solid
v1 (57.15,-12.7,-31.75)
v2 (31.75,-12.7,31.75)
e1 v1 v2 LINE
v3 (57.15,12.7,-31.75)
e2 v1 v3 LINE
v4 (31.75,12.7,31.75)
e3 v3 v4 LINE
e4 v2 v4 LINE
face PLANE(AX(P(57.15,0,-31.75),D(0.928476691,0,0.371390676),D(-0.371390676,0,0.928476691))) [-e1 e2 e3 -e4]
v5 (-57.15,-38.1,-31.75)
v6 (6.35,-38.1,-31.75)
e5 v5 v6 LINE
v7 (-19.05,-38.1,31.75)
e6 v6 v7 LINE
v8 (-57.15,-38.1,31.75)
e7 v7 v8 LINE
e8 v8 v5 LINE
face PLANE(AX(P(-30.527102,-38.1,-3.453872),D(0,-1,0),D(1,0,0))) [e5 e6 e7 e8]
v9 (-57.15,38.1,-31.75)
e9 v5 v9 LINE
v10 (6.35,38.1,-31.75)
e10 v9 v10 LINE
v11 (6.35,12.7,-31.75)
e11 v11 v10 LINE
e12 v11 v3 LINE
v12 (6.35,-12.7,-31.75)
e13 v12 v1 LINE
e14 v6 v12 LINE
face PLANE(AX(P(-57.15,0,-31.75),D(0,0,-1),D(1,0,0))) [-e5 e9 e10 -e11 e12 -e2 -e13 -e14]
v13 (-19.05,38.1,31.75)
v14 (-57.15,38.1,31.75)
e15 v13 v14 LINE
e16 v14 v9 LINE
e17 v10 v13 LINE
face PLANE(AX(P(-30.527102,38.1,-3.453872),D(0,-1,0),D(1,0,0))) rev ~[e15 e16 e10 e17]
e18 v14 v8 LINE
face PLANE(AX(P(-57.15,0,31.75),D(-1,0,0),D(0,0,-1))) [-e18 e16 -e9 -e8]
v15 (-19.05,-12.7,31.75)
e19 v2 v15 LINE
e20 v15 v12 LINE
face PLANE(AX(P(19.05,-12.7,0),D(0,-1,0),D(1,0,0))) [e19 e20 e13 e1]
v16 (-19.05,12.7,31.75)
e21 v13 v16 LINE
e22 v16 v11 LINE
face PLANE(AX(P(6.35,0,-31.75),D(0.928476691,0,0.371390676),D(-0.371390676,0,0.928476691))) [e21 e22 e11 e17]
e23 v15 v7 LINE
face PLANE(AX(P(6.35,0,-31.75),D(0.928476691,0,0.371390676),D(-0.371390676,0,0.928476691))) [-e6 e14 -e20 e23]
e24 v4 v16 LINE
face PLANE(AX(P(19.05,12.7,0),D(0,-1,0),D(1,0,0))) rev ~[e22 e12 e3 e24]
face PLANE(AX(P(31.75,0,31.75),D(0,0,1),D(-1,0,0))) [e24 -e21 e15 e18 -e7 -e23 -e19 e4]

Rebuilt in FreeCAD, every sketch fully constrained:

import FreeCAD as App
import Part
import Sketcher
from FreeCAD import Vector
Q = App.Units.Quantity

doc = App.newDocument("Part")
body = doc.addObject("PartDesign::Body", "Body")

# Sketch on XZ plane
sketch1 = body.newObject("Sketcher::SketchObject", "Sketch")
sketch1.AttachmentSupport = (doc.getObject("XZ_Plane"), [""])
sketch1.MapMode = "FlatFace"
sketch1.addGeometry([
    Part.LineSegment(Vector(6, -32, 0), Vector(-19, 32, 0)),
    Part.LineSegment(Vector(-19, 32, 0), Vector(-57, 32, 0)),
    Part.LineSegment(Vector(-57, 32, 0), Vector(-57, -32, 0)),
    Part.LineSegment(Vector(-57, -32, 0), Vector(6, -32, 0)),
], False)
sketch1.addConstraint([
    Sketcher.Constraint("Coincident", 0, 2, 1, 1),
    Sketcher.Constraint("Coincident", 1, 2, 2, 1),
    Sketcher.Constraint("Coincident", 2, 2, 3, 1),
    Sketcher.Constraint("Coincident", 3, 2, 0, 1),
    Sketcher.Constraint("Horizontal", 1),
    Sketcher.Constraint("Vertical", 2),
    Sketcher.Constraint("Horizontal", 3),
    Sketcher.Constraint("Equal", 3, 2),
    Sketcher.Constraint("DistanceX", 1, 2, 1, 1, Q("1.5 in")),
    Sketcher.Constraint("DistanceX", 3, 1, 3, 2, Q("2.5 in")),
    Sketcher.Constraint("DistanceX", 0, 2, -1, 1, Q("0.75 in")),
    Sketcher.Constraint("DistanceY", -1, 1, 0, 2, Q("1.25 in")),
])
pad1 = body.newObject("PartDesign::Pad", "Pad")
pad1.Profile = sketch1
pad1.Length = Q("3 in")
pad1.Midplane = True

# Sketch on XZ plane
sketch2 = body.newObject("Sketcher::SketchObject", "Sketch001")
sketch2.AttachmentSupport = (doc.getObject("XZ_Plane"), [""])
sketch2.MapMode = "FlatFace"
sketch2.addGeometry([
    Part.LineSegment(Vector(32, 32, 0), Vector(-57, 32, 0)),
    Part.LineSegment(Vector(-57, 32, 0), Vector(-57, -32, 0)),
    Part.LineSegment(Vector(-57, -32, 0), Vector(57, -32, 0)),
    Part.LineSegment(Vector(57, -32, 0), Vector(32, 32, 0)),
], False)
sketch2.addConstraint([
    Sketcher.Constraint("Coincident", 0, 2, 1, 1),
    Sketcher.Constraint("Coincident", 1, 2, 2, 1),
    Sketcher.Constraint("Coincident", 2, 2, 3, 1),
    Sketcher.Constraint("Coincident", 3, 2, 0, 1),
    Sketcher.Constraint("Horizontal", 0),
    Sketcher.Constraint("Vertical", 1),
    Sketcher.Constraint("Horizontal", 2),
    Sketcher.Constraint("Symmetric", 0, 2, 2, 2, -1, 1),
    Sketcher.Constraint("DistanceX", 0, 2, 0, 1, Q("3.5 in")),
    Sketcher.Constraint("DistanceX", 2, 1, 2, 2, Q("4.5 in")),
    Sketcher.Constraint("DistanceY", 1, 2, 1, 1, Q("2.5 in")),
])
pad2 = body.newObject("PartDesign::Pad", "Pad001")
pad2.Profile = sketch2
pad2.Length = Q("1 in")
pad2.Midplane = True

doc.recompute()
